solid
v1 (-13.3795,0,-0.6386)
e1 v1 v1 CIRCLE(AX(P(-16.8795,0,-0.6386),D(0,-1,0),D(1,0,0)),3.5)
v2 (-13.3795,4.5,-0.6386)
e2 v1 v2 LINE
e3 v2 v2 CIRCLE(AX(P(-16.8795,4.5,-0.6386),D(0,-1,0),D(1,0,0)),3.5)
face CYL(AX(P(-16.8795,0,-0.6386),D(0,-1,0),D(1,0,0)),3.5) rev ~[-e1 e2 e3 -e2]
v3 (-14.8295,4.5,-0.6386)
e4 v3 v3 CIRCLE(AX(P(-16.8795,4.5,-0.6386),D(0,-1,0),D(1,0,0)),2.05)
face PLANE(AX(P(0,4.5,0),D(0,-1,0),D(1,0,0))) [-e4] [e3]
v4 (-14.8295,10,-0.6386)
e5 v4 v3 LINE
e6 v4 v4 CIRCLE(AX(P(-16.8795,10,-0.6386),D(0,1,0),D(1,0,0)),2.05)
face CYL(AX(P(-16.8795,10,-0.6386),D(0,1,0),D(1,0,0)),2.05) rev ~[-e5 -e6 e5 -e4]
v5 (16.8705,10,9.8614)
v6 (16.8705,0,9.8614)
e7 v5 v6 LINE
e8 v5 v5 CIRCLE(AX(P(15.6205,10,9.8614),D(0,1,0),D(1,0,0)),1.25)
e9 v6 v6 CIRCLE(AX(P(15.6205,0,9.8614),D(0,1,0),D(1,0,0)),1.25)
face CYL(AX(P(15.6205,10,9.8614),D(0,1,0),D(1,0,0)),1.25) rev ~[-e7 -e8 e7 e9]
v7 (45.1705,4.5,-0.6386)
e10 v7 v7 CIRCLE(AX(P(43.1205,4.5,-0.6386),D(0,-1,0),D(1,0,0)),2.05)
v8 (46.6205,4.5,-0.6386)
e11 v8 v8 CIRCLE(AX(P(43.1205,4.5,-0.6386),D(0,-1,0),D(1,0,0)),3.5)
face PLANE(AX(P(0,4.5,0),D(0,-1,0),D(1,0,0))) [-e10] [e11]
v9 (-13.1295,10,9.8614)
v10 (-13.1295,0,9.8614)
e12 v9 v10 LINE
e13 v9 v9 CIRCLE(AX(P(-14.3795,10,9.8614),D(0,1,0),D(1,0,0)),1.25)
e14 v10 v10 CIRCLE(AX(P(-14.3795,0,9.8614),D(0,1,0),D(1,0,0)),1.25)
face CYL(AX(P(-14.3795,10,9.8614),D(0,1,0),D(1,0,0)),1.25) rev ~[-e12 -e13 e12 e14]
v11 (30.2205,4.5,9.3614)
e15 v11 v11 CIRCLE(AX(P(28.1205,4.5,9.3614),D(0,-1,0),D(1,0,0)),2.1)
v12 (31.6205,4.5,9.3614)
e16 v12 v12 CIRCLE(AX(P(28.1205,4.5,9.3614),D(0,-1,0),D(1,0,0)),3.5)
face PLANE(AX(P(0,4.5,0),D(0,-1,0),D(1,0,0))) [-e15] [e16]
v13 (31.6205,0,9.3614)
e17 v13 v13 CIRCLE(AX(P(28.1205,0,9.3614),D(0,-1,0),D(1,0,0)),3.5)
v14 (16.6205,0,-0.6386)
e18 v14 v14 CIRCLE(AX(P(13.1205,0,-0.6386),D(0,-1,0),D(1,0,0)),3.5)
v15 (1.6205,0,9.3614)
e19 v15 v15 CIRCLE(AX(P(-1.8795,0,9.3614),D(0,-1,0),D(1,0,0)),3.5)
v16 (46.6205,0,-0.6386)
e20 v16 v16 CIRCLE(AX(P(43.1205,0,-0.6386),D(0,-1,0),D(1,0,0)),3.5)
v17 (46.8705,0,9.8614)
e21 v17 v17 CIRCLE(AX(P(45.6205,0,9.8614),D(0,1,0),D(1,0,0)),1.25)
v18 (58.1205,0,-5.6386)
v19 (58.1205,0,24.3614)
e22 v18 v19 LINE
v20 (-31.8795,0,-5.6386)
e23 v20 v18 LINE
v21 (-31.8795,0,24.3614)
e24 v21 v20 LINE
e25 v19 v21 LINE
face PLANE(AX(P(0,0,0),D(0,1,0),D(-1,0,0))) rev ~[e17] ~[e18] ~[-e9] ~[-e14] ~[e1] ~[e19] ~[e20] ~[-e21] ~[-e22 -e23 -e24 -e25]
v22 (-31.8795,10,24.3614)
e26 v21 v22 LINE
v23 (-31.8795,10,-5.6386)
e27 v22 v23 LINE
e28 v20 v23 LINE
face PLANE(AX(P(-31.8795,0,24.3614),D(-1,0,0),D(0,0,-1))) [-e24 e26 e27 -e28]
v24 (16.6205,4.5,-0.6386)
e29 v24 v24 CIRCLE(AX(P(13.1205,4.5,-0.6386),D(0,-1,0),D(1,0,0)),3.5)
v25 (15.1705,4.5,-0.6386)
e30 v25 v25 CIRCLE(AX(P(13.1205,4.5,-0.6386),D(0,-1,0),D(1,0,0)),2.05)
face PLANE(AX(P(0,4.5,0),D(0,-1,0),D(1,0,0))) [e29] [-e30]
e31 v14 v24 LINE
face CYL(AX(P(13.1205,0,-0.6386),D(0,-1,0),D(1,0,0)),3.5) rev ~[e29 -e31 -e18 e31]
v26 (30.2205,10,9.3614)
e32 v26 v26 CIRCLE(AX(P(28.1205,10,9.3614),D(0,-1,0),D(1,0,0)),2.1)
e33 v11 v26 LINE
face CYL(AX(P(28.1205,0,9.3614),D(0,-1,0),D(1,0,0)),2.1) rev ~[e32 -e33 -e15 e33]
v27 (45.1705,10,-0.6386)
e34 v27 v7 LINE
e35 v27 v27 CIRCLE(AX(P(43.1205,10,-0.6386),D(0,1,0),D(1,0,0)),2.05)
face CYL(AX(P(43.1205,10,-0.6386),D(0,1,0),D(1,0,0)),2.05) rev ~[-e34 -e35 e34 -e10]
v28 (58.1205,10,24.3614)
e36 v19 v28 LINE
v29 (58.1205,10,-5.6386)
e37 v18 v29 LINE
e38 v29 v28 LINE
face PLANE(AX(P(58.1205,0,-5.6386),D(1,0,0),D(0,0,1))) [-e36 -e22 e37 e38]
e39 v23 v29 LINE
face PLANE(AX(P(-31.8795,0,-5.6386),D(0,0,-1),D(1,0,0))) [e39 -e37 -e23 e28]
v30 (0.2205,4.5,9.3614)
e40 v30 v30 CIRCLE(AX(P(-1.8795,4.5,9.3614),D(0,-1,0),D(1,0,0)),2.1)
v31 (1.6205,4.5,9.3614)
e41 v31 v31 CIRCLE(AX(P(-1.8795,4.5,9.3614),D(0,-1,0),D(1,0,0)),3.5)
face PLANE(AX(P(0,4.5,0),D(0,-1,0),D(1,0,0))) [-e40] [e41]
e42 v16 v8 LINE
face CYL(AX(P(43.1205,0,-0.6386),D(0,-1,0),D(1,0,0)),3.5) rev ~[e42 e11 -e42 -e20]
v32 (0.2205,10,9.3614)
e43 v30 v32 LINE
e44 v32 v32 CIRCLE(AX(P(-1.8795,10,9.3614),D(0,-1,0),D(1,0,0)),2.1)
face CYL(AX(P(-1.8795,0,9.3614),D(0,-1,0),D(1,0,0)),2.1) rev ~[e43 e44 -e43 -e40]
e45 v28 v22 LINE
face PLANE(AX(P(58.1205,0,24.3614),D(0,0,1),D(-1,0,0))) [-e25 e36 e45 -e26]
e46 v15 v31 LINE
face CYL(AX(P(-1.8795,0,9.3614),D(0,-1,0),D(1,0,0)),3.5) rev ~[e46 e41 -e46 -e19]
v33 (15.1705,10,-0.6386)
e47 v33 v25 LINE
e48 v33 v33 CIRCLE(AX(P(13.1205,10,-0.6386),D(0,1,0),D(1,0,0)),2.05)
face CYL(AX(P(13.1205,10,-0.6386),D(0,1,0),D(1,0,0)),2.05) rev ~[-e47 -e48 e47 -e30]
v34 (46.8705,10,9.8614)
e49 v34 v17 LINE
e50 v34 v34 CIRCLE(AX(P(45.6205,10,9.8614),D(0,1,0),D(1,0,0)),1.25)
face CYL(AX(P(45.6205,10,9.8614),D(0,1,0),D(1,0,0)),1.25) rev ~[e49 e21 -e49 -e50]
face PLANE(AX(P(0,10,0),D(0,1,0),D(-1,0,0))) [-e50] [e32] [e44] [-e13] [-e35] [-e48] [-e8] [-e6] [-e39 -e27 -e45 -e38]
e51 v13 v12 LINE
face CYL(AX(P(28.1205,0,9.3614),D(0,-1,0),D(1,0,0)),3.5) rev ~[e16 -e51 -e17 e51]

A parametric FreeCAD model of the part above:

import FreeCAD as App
import Part
import Sketcher
Q = App.Units.Quantity

doc = App.newDocument("Part")
body = doc.addObject("PartDesign::Body", "Body")

sketch1 = body.newObject("Sketcher::SketchObject", "Sketch")
sketch1.AttachmentSupport = (doc.getObject("XZ_Plane"), [""])
sketch1.MapMode = "FlatFace"
sketch1.addGeometry([
    Part.LineSegment(App.Vector(58, -6, 0), App.Vector(-32, -6, 0)),
    Part.LineSegment(App.Vector(-32, -6, 0), App.Vector(-32, 24, 0)),
    Part.LineSegment(App.Vector(-32, 24, 0), App.Vector(58, 24, 0)),
    Part.LineSegment(App.Vector(58, 24, 0), App.Vector(58, -6, 0)),
], False)
sketch1.addConstraint([
    Sketcher.Constraint("Coincident", 0, 2, 1, 1),
    Sketcher.Constraint("Coincident", 1, 2, 2, 1),
    Sketcher.Constraint("Coincident", 2, 2, 3, 1),
    Sketcher.Constraint("Coincident", 3, 2, 0, 1),
    Sketcher.Constraint("Horizontal", 0),
    Sketcher.Constraint("Vertical", 1),
    Sketcher.Constraint("Horizontal", 2),
    Sketcher.Constraint("Vertical", 3),
    Sketcher.Constraint("DistanceX", 0, 2, 0, 1, Q("90 mm")),
    Sketcher.Constraint("DistanceY", 1, 1, 1, 2, Q("30 mm")),
    Sketcher.Constraint("DistanceX", 0, 2, -1, 1, Q("31.8795 mm")),
    Sketcher.Constraint("DistanceY", 0, 2, -1, 1, Q("5.6386 mm")),
])
pad1 = body.newObject("PartDesign::Pad", "Pad")
pad1.Profile = sketch1
pad1.Length = 10
pad1.Reversed = True

sketch2 = body.newObject("Sketcher::SketchObject", "Sketch001")
sketch2.AttachmentSupport = (doc.getObject("XZ_Plane"), [""])
sketch2.MapMode = "FlatFace"
sketch2.AttachmentOffset = App.Placement(App.Vector(0, 0, -10), App.Rotation())
sketch2.addGeometry([
    Part.Circle(App.Vector(-16.9, -0.6, 0), App.Vector(0, 0, 1), 2),
    Part.Circle(App.Vector(13.1, -0.6, 0), App.Vector(0, 0, 1), 2),
    Part.Circle(App.Vector(43.1, -0.6, 0), App.Vector(0, 0, 1), 2),
], False)
sketch2.addConstraint([
    Sketcher.Constraint("Equal", 0, 1),
    Sketcher.Constraint("Equal", 1, 2),
    Sketcher.Constraint("Horizontal", 0, 3, 1, 3),
    Sketcher.Constraint("Horizontal", 1, 3, 2, 3),
    Sketcher.Constraint("Diameter", 0, Q("4.1 mm")),
    Sketcher.Constraint("DistanceX", 0, 3, 1, 3, Q("30 mm")),
    Sketcher.Constraint("DistanceX", 1, 3, 2, 3, Q("30 mm")),
    Sketcher.Constraint("DistanceX", 0, 3, -1, 1, Q("16.8795 mm")),
    Sketcher.Constraint("DistanceY", 0, 3, -1, 1, Q("0.6386 mm")),
])
pocket1 = body.newObject("PartDesign::Pocket", "Pocket")
pocket1.Profile = sketch2
pocket1.Length = 10
pocket1.Reversed = True

sketch3 = body.newObject("Sketcher::SketchObject", "Sketch002")
sketch3.AttachmentSupport = (doc.getObject("XZ_Plane"), [""])
sketch3.MapMode = "FlatFace"
sketch3.addGeometry([
    Part.Circle(App.Vector(-16.9, -0.6, 0), App.Vector(0, 0, 1), 3.5),
    Part.Circle(App.Vector(-16.9, -0.6, 0), App.Vector(0, 0, 1), 2),
    Part.Circle(App.Vector(13.1, -0.6, 0), App.Vector(0, 0, 1), 3.5),
    Part.Circle(App.Vector(13.1, -0.6, 0), App.Vector(0, 0, 1), 2),
    Part.Circle(App.Vector(43.1, -0.6, 0), App.Vector(0, 0, 1), 3.5),
    Part.Circle(App.Vector(43.1, -0.6, 0), App.Vector(0, 0, 1), 2),
], False)
sketch3.addConstraint([
    Sketcher.Constraint("Coincident", 1, 3, 0, 3),
    Sketcher.Constraint("Coincident", 3, 3, 2, 3),
    Sketcher.Constraint("Coincident", 5, 3, 4, 3),
    Sketcher.Constraint("Equal", 0, 2),
    Sketcher.Constraint("Equal", 1, 3),
    Sketcher.Constraint("Equal", 2, 4),
    Sketcher.Constraint("Equal", 3, 5),
    Sketcher.Constraint("Horizontal", 1, 3, 2, 3),
    Sketcher.Constraint("Horizontal", 3, 3, 4, 3),
    Sketcher.Constraint("Diameter", 0, Q("7 mm")),
    Sketcher.Constraint("Diameter", 1, Q("4.1 mm")),
    Sketcher.Constraint("DistanceX", 0, 3, 2, 3, Q("30 mm")),
    Sketcher.Constraint("DistanceX", 2, 3, 4, 3, Q("30 mm")),
    Sketcher.Constraint("DistanceX", 0, 3, -1, 1, Q("16.8795 mm")),
    Sketcher.Constraint("DistanceY", 0, 3, -1, 1, Q("0.6386 mm")),
])
pocket2 = body.newObject("PartDesign::Pocket", "Pocket001")
pocket2.Profile = sketch3
pocket2.Length = 4.5

sketch4 = body.newObject("Sketcher::SketchObject", "Sketch003")
sketch4.AttachmentSupport = (doc.getObject("XZ_Plane"), [""])
sketch4.MapMode = "FlatFace"
sketch4.addGeometry([
    Part.Circle(App.Vector(-1.9, 9.4, 0), App.Vector(0, 0, 1), 2.1),
    Part.Circle(App.Vector(28.1, 9.4, 0), App.Vector(0, 0, 1), 2.1),
], False)
sketch4.addConstraint([
    Sketcher.Constraint("Equal", 0, 1),
    Sketcher.Constraint("Horizontal", 0, 3, 1, 3),
    Sketcher.Constraint("Diameter", 0, Q("4.2 mm")),
    Sketcher.Constraint("DistanceX", 0, 3, 1, 3, Q("30 mm")),
    Sketcher.Constraint("DistanceX", 0, 3, -1, 1, Q("1.8795 mm")),
    Sketcher.Constraint("DistanceY", -1, 1, 0, 3, Q("9.3614 mm")),
])
pocket3 = body.newObject("PartDesign::Pocket", "Pocket002")
pocket3.Profile = sketch4
pocket3.Length = 10

sketch5 = body.newObject("Sketcher::SketchObject", "Sketch004")
sketch5.AttachmentSupport = (doc.getObject("XZ_Plane"), [""])
sketch5.MapMode = "FlatFace"
sketch5.addGeometry([
    Part.Circle(App.Vector(-1.9, 9.4, 0), App.Vector(0, 0, 1), 3.5),
    Part.Circle(App.Vector(-1.9, 9.4, 0), App.Vector(0, 0, 1), 2.1),
    Part.Circle(App.Vector(28.1, 9.4, 0), App.Vector(0, 0, 1), 3.5),
    Part.Circle(App.Vector(28.1, 9.4, 0), App.Vector(0, 0, 1), 2.1),
], False)
sketch5.addConstraint([
    Sketcher.Constraint("Coincident", 1, 3, 0, 3),
    Sketcher.Constraint("Coincident", 3, 3, 2, 3),
    Sketcher.Constraint("Equal", 0, 2),
    Sketcher.Constraint("Equal", 1, 3),
    Sketcher.Constraint("Horizontal", 1, 3, 2, 3),
    Sketcher.Constraint("Diameter", 0, Q("7 mm")),
    Sketcher.Constraint("Diameter", 1, Q("4.2 mm")),
    Sketcher.Constraint("DistanceX", 0, 3, 2, 3, Q("30 mm")),
    Sketcher.Constraint("DistanceX", 0, 3, -1, 1, Q("1.8795 mm")),
    Sketcher.Constraint("DistanceY", -1, 1, 0, 3, Q("9.3614 mm")),
])
pocket4 = body.newObject("PartDesign::Pocket", "Pocket003")
pocket4.Profile = sketch5
pocket4.Length = 4.5

sketch6 = body.newObject("Sketcher::SketchObject", "Sketch005")
sketch6.AttachmentSupport = (doc.getObject("XZ_Plane"), [""])
sketch6.MapMode = "FlatFace"
sketch6.AttachmentOffset = App.Placement(App.Vector(0, 0, -10), App.Rotation())
sketch6.addGeometry([
    Part.Circle(App.Vector(45.6, 9.9, 0), App.Vector(0, 0, 1), 1.2),
    Part.Circle(App.Vector(15.6, 9.9, 0), App.Vector(0, 0, 1), 1.2),
    Part.Circle(App.Vector(-14.4, 9.9, 0), App.Vector(0, 0, 1), 1.2),
], False)
sketch6.addConstraint([
    Sketcher.Constraint("Equal", 0, 1),
    Sketcher.Constraint("Equal", 1, 2),
    Sketcher.Constraint("Horizontal", 0, 3, 1, 3),
    Sketcher.Constraint("Horizontal", 1, 3, 2, 3),
    Sketcher.Constraint("Diameter", 0, Q("2.5 mm")),
    Sketcher.Constraint("DistanceX", 1, 3, 0, 3, Q("30 mm")),
    Sketcher.Constraint("DistanceX", 2, 3, 1, 3, Q("30 mm")),
    Sketcher.Constraint("DistanceX", -1, 1, 0, 3, Q("45.6205 mm")),
    Sketcher.Constraint("DistanceY", -1, 1, 0, 3, Q("9.8614 mm")),
])
pocket5 = body.newObject("PartDesign::Pocket", "Pocket004")
pocket5.Profile = sketch6
pocket5.Length = 20
pocket5.Reversed = True

doc.recompute()
